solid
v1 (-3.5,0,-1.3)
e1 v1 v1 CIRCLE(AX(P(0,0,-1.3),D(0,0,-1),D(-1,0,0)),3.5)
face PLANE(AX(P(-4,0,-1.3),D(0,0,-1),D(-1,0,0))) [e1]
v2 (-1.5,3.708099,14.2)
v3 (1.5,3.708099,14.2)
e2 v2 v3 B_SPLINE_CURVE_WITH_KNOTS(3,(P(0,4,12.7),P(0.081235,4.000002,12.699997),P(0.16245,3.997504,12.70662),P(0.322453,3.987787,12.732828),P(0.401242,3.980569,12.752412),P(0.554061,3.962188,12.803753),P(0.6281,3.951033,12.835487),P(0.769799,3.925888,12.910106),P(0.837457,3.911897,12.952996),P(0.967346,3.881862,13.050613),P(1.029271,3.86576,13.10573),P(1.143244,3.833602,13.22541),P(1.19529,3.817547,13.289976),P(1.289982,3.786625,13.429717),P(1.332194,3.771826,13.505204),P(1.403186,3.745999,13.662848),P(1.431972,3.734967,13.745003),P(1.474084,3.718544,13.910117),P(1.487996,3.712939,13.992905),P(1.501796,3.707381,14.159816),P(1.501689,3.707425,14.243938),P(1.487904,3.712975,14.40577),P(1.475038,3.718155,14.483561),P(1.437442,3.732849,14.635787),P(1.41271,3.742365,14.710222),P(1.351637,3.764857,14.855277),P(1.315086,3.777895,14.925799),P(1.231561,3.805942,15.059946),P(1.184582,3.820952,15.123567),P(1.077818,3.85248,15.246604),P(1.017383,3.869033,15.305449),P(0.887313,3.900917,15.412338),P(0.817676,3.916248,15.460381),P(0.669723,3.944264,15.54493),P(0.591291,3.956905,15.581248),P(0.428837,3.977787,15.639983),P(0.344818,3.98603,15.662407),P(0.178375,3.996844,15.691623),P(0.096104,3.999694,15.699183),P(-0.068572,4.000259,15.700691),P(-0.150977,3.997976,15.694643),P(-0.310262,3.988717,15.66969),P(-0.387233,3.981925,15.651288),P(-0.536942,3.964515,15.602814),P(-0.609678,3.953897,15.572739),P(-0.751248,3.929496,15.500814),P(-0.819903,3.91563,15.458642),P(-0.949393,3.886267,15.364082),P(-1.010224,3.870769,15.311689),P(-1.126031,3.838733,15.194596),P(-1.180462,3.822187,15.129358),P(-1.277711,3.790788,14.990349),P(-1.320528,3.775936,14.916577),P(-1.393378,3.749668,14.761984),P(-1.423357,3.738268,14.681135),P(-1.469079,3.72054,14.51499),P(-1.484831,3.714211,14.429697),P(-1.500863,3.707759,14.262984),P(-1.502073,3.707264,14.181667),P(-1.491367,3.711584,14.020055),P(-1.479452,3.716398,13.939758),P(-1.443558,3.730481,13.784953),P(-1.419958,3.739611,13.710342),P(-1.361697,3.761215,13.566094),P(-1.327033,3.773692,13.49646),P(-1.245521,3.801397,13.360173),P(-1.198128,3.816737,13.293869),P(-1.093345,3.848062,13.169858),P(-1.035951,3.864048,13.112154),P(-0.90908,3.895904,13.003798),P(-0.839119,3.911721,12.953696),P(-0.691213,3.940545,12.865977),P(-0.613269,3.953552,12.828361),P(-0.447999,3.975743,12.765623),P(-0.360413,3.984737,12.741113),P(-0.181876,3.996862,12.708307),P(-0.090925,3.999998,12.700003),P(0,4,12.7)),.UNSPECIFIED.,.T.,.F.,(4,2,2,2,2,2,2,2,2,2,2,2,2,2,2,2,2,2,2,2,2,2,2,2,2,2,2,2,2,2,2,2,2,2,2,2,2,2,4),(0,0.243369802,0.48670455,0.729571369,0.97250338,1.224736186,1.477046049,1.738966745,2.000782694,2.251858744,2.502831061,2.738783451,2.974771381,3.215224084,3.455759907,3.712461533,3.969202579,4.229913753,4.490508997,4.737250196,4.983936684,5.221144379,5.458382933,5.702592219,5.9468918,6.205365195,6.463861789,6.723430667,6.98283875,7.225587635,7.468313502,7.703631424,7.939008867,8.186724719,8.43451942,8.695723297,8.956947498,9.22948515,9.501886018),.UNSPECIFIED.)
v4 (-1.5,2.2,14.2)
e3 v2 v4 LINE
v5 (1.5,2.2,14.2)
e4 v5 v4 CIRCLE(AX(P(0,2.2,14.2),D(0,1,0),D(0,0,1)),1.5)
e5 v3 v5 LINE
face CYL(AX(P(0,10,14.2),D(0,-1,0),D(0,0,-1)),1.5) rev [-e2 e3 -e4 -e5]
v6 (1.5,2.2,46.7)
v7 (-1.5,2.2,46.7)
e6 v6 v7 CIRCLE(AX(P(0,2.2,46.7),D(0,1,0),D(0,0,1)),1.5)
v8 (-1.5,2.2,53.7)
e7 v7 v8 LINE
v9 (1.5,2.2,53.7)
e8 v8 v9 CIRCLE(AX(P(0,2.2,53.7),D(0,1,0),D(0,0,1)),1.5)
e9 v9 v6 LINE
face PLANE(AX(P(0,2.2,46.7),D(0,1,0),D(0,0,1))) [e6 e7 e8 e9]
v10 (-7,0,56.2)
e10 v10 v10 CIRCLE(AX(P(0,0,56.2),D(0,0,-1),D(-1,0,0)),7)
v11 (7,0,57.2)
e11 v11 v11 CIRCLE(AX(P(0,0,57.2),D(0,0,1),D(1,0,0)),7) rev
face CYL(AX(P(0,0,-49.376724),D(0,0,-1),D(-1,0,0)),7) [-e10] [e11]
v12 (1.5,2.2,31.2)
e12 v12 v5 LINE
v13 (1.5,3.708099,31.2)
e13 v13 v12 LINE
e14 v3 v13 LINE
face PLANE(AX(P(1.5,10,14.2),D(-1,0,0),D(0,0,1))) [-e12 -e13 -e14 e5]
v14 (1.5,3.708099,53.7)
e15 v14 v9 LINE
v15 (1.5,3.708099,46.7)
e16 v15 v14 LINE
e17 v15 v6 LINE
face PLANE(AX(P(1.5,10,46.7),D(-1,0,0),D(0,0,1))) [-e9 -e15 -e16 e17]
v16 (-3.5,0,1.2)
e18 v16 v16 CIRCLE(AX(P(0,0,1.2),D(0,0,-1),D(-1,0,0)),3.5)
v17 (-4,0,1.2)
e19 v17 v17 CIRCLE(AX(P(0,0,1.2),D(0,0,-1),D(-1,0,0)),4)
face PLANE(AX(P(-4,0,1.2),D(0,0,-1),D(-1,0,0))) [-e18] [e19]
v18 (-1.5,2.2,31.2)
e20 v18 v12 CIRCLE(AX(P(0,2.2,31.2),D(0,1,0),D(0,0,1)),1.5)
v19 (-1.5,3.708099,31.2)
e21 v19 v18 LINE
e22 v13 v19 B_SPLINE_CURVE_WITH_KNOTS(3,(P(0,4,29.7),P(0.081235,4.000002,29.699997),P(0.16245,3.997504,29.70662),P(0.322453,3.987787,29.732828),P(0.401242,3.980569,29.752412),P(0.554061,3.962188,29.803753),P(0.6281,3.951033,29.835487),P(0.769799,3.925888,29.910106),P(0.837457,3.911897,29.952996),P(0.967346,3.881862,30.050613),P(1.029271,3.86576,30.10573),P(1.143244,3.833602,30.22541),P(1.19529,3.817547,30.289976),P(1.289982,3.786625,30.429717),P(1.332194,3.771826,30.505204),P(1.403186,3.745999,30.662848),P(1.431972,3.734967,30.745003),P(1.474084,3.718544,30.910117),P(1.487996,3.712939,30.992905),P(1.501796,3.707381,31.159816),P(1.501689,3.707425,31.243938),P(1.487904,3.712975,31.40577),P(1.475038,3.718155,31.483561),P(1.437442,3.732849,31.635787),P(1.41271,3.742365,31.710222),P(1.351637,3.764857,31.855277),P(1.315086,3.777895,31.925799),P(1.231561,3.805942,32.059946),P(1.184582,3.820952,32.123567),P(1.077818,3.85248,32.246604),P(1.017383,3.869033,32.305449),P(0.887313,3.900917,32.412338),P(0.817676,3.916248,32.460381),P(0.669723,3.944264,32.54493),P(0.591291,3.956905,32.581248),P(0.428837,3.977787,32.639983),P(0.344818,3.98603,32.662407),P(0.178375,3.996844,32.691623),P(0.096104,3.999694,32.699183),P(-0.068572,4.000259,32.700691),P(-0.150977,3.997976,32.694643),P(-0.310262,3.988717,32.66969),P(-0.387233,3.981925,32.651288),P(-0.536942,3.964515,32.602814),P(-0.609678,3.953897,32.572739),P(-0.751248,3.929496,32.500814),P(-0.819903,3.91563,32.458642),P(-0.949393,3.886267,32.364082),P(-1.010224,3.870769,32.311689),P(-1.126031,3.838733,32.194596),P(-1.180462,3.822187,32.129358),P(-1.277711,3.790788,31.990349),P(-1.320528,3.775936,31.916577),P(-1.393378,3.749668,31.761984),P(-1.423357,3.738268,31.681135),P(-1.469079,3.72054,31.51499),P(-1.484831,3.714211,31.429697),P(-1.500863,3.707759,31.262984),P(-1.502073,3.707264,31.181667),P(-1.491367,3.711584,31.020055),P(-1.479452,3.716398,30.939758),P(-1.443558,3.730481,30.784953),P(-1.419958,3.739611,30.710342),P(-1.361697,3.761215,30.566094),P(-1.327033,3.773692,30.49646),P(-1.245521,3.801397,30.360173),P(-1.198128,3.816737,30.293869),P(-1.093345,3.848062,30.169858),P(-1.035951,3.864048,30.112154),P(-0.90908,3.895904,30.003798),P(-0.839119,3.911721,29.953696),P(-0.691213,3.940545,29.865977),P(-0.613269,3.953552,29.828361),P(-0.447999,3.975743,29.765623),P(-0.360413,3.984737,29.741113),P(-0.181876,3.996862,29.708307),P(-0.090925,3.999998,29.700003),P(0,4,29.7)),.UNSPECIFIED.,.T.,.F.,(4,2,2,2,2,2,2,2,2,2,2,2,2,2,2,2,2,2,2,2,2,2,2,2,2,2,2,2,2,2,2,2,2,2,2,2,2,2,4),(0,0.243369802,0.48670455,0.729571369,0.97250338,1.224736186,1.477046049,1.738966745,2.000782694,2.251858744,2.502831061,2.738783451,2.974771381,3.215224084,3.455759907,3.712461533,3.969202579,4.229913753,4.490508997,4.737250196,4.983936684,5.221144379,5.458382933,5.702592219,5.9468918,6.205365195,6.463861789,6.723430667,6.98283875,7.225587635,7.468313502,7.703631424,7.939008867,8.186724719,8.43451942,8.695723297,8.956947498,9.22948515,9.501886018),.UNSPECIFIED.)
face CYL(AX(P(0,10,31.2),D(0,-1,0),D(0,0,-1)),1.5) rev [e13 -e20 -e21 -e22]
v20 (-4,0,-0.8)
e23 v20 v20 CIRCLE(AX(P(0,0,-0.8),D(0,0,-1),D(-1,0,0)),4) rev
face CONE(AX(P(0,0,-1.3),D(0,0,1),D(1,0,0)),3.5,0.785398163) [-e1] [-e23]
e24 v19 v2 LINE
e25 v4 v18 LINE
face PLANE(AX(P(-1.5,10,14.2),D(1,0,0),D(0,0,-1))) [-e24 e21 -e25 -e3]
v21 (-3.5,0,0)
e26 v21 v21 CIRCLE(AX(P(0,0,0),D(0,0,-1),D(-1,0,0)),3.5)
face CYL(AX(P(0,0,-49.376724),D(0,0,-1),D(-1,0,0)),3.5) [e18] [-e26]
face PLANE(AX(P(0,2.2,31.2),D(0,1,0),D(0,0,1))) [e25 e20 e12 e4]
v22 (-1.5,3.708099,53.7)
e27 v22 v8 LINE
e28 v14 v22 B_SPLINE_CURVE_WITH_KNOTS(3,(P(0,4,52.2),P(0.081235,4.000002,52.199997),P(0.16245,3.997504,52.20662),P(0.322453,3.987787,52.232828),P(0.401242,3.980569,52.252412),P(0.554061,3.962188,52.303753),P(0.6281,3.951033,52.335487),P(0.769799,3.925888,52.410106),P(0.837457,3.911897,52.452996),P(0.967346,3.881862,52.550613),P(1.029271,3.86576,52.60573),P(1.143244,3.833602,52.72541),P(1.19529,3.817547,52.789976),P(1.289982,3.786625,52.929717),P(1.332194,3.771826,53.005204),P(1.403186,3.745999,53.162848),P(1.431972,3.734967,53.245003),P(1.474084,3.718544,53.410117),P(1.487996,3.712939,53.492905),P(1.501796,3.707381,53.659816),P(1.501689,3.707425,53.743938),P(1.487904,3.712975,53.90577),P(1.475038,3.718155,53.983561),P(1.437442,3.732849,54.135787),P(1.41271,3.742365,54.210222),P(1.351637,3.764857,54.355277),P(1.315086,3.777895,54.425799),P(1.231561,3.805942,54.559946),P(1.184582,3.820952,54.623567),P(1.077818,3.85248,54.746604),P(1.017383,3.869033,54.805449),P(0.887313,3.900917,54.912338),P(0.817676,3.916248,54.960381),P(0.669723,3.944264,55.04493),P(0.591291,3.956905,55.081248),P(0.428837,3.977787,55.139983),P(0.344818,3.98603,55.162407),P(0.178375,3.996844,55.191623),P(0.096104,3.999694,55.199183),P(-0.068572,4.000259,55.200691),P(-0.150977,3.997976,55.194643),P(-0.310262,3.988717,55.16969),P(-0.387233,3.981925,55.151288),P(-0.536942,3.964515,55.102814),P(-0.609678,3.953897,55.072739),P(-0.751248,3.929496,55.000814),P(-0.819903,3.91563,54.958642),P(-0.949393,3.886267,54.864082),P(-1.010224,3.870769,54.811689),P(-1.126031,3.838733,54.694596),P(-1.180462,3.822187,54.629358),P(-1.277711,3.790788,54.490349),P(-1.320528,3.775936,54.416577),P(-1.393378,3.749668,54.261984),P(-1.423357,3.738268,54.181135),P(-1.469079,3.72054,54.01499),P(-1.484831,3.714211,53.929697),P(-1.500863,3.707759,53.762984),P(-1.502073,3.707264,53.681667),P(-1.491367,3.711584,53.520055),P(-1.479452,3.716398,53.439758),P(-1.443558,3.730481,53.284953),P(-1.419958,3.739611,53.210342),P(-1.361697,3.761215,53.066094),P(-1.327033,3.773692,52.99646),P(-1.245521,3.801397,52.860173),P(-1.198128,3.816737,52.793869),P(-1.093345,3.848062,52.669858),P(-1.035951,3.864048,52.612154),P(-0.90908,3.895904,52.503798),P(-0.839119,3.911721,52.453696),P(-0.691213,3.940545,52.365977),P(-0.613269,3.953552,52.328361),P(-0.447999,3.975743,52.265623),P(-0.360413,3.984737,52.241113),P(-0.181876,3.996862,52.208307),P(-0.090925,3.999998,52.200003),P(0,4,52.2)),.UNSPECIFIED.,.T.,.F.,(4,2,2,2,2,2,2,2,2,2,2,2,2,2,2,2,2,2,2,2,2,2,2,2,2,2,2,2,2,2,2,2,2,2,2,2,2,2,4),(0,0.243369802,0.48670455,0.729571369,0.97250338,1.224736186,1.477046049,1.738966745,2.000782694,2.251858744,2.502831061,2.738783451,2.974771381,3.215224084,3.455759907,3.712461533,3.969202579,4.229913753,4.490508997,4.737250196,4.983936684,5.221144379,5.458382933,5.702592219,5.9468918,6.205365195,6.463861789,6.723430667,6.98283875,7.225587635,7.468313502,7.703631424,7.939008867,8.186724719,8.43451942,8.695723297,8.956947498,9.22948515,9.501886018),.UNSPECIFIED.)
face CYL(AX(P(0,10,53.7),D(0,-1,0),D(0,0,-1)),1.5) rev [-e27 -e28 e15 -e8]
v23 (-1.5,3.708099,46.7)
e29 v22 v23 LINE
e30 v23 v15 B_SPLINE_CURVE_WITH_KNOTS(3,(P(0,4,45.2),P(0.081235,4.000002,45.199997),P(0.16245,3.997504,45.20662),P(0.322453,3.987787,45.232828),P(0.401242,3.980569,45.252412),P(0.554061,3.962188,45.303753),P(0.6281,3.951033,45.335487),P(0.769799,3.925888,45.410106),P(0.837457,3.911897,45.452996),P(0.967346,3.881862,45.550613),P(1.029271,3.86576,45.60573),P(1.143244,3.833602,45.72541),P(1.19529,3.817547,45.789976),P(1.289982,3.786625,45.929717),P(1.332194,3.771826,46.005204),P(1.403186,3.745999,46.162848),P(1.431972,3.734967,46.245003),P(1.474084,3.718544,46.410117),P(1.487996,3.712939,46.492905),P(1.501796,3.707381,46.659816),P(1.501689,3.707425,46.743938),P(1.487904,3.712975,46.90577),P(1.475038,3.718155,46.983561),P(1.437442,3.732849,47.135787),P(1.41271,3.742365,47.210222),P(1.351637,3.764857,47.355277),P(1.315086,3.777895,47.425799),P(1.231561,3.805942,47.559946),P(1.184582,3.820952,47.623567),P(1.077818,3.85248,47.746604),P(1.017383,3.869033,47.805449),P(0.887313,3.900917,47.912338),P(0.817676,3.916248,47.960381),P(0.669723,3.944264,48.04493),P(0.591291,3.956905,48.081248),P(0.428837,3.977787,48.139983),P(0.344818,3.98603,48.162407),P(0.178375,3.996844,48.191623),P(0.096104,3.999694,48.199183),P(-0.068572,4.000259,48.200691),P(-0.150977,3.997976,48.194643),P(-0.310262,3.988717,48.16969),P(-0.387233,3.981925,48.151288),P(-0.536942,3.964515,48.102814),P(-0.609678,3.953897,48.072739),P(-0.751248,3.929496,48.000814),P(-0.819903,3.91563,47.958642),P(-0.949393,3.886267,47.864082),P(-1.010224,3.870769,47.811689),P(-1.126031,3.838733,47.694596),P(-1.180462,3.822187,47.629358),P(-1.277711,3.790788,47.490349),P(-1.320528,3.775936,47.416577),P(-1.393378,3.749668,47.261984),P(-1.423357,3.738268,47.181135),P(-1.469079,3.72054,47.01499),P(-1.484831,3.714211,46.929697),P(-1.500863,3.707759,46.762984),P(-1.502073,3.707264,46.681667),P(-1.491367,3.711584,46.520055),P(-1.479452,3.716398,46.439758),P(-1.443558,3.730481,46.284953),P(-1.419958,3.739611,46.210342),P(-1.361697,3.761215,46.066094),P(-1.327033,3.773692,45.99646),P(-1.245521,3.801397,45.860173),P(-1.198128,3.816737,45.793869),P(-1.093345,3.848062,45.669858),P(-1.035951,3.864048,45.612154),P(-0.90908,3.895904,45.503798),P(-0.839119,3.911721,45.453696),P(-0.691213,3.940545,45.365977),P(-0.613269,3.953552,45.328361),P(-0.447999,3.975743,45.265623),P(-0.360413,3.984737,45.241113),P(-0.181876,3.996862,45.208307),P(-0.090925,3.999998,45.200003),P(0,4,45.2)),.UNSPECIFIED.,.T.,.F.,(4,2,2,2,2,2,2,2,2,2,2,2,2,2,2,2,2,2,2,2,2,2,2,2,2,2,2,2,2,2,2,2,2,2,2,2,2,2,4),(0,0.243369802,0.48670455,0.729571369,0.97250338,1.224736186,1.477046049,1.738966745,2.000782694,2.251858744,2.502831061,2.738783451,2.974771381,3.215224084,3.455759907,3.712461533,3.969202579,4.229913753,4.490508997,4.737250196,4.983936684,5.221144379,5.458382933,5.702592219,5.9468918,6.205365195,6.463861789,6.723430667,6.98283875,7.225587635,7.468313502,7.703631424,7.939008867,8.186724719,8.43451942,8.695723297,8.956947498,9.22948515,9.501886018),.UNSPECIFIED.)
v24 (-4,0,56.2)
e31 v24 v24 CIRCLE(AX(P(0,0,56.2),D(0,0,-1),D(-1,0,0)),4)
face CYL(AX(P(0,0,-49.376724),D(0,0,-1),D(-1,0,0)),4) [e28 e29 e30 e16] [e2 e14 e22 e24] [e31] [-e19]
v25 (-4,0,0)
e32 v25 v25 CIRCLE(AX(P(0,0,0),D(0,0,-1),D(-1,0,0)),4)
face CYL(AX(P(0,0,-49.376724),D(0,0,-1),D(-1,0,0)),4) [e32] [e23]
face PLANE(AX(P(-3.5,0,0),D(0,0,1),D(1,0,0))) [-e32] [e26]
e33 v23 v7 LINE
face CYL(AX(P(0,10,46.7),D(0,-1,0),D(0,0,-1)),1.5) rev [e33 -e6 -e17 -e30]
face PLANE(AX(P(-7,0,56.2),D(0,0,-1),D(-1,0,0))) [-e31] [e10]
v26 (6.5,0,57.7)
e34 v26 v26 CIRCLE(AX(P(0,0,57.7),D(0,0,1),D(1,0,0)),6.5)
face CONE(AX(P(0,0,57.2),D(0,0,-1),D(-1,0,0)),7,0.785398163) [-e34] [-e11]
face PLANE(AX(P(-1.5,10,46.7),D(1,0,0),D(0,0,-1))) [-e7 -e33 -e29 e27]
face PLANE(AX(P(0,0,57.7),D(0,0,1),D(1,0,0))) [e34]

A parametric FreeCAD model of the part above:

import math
import FreeCAD as App
import Part
import Sketcher
Q = App.Units.Quantity


def edges_at(feature, points):
    """Names of the edges that pass closest to the given points."""
    edges = feature.Shape.Edges
    near = lambda p: min(range(len(edges)), key=lambda i: edges[i].distToShape(Part.Vertex(*p))[0])
    return sorted({f"Edge{near(p) + 1}" for p in points})


def add_polygon(sketch, points):
    """Adds a closed chain of lines whose ends are joined by coincident constraints."""
    first, n = sketch.GeometryCount, len(points)
    for a, b in zip(points, points[1:] + points[:1]):
        sketch.addGeometry(Part.LineSegment(App.Vector(*a, 0), App.Vector(*b, 0)), False)
    for i in range(n):
        sketch.addConstraint(Sketcher.Constraint("Coincident", first + i, 2, first + (i + 1) % n, 1))

doc = App.newDocument("Part")
params = doc.addObject("Spreadsheet::Sheet", "Params")
for row, (alias, value) in enumerate([
    ("sketch1_width", "7 mm"),
    ("sketch1_width2", "4 mm"),
    ("sketch1_height", "59 mm"),
    ("sketch1_height2", "55 mm"),
    ("sketch1_width3", "0.5 mm"),
    ("revolution_angle", "360 deg"),
    ("chamfer_size", "0.5 mm"),
    ("sketch2_radius", "1.5 mm"),
    ("sketch2_height", "17 mm"),
    ("sketch2_height2", "7 mm"),
    ("pocket1_length", "10 mm"),
    ("sketch3_radius", "1.5 mm"),
    ("sketch3_height", "17 mm"),
    ("pad1_length", "2.2 mm"),
    ("sketch4_radius", "1.5 mm"),
    ("sketch4_height", "7 mm"),
    ("pad2_length", "2.2 mm"),
], start=1):
    params.set(f"A{row}", alias)
    params.set(f"B{row}", "=" + value)
    params.setAlias(f"B{row}", alias)

body = doc.addObject("PartDesign::Body", "Body")

# Sketch on XZ plane
sketch1 = body.newObject("Sketcher::SketchObject", "Sketch")
sketch1.AttachmentSupport = (doc.getObject("XZ_Plane"), [""])
sketch1.MapMode = "FlatFace"
add_polygon(sketch1, [(-7, 57.7), (0, 57.7), (0, -1.3), (-4, -1.3), (-4, 0), (-3.5, 0), (-3.5, 1.2), (-4, 1.2), (-4, 56.2), (-7, 56.2)])  # lines 0-9
sketch1.addConstraint(Sketcher.Constraint("Horizontal", 0))
sketch1.addConstraint(Sketcher.Constraint("Vertical", 1))
sketch1.addConstraint(Sketcher.Constraint("Horizontal", 2))
sketch1.addConstraint(Sketcher.Constraint("Vertical", 3))
sketch1.addConstraint(Sketcher.Constraint("Horizontal", 4))
sketch1.addConstraint(Sketcher.Constraint("Vertical", 5))
sketch1.addConstraint(Sketcher.Constraint("Horizontal", 6))
sketch1.addConstraint(Sketcher.Constraint("Vertical", 7))
sketch1.addConstraint(Sketcher.Constraint("Horizontal", 8))
sketch1.addConstraint(Sketcher.Constraint("Vertical", 9))
sketch1.addConstraint(Sketcher.Constraint("PointOnObject", 0, 2, -2))
sketch1.addConstraint(Sketcher.Constraint("PointOnObject", 3, 2, -1))
sketch1.addConstraint(Sketcher.Constraint("Vertical", 3, 2, 6, 2))
sketch1.addConstraint(Sketcher.Constraint("DistanceX", 0, 1, 0, 2, Q("7 mm")))
sketch1.addConstraint(Sketcher.Constraint("DistanceX", 2, 2, 2, 1, Q("4 mm")))
sketch1.addConstraint(Sketcher.Constraint("DistanceY", 1, 2, 1, 1, Q("59 mm")))
sketch1.addConstraint(Sketcher.Constraint("DistanceY", 7, 1, 7, 2, Q("55 mm")))
sketch1.addConstraint(Sketcher.Constraint("DistanceX", 4, 1, 4, 2, Q("0.5 mm")))
sketch1.addConstraint(Sketcher.Constraint("DistanceY", 3, 1, 3, 2, Q("1.3 mm")))
sketch1.addConstraint(Sketcher.Constraint("DistanceY", 5, 1, 5, 2, Q("1.2 mm")))
sketch1.setExpression("Constraints[23]", "Params.sketch1_width")
sketch1.setExpression("Constraints[24]", "Params.sketch1_width2")
sketch1.setExpression("Constraints[25]", "Params.sketch1_height")
sketch1.setExpression("Constraints[26]", "Params.sketch1_height2")
sketch1.setExpression("Constraints[27]", "Params.sketch1_width3")
revolution = body.newObject("PartDesign::Revolution", "Revolution")
revolution.Profile = sketch1
revolution.ReferenceAxis = (sketch1, ["V_Axis"])
revolution.setExpression("Angle", "Params.revolution_angle")
doc.recompute()

chamfer = body.newObject("PartDesign::Chamfer", "Chamfer")
chamfer.Base = (revolution, edges_at(revolution, [(4, 0, -1.3), (7, 0, 57.7)]))
chamfer.setExpression("Size", "Params.chamfer_size")

# Sketch on XZ plane
sketch2 = body.newObject("Sketcher::SketchObject", "Sketch001")
sketch2.AttachmentSupport = (doc.getObject("XZ_Plane"), [""])
sketch2.MapMode = "FlatFace"
sketch2.addGeometry(Part.LineSegment(App.Vector(-1.5, 14.2, 0), App.Vector(-1.5, 31.2, 0)), False)
sketch2.addGeometry(Part.ArcOfCircle(Part.Circle(App.Vector(0, 31.2, 0), App.Vector(0, 0, 1), 1.5), math.radians(0), math.radians(180)), False)
sketch2.addGeometry(Part.LineSegment(App.Vector(1.5, 31.2, 0), App.Vector(1.5, 14.2, 0)), False)
sketch2.addGeometry(Part.ArcOfCircle(Part.Circle(App.Vector(0, 14.2, 0), App.Vector(0, 0, 1), 1.5), math.radians(180), math.radians(360)), False)
sketch2.addGeometry(Part.LineSegment(App.Vector(-1.5, 46.7, 0), App.Vector(-1.5, 53.7, 0)), False)
sketch2.addGeometry(Part.ArcOfCircle(Part.Circle(App.Vector(0, 53.7, 0), App.Vector(0, 0, 1), 1.5), math.radians(0), math.radians(180)), False)
sketch2.addGeometry(Part.LineSegment(App.Vector(1.5, 53.7, 0), App.Vector(1.5, 46.7, 0)), False)
sketch2.addGeometry(Part.ArcOfCircle(Part.Circle(App.Vector(0, 46.7, 0), App.Vector(0, 0, 1), 1.5), math.radians(180), math.radians(360)), False)
sketch2.addConstraint(Sketcher.Constraint("Tangent", 0, 2, 1, 2))
sketch2.addConstraint(Sketcher.Constraint("Tangent", 1, 1, 2, 1))
sketch2.addConstraint(Sketcher.Constraint("Tangent", 2, 2, 3, 2))
sketch2.addConstraint(Sketcher.Constraint("Tangent", 3, 1, 0, 1))
sketch2.addConstraint(Sketcher.Constraint("Tangent", 4, 2, 5, 2))
sketch2.addConstraint(Sketcher.Constraint("Tangent", 5, 1, 6, 1))
sketch2.addConstraint(Sketcher.Constraint("Tangent", 6, 2, 7, 2))
sketch2.addConstraint(Sketcher.Constraint("Tangent", 7, 1, 4, 1))
sketch2.addConstraint(Sketcher.Constraint("Vertical", 0))
sketch2.addConstraint(Sketcher.Constraint("Vertical", 2))
sketch2.addConstraint(Sketcher.Constraint("Vertical", 4))
sketch2.addConstraint(Sketcher.Constraint("Vertical", 6))
sketch2.addConstraint(Sketcher.Constraint("Equal", 3, 5))
sketch2.addConstraint(Sketcher.Constraint("PointOnObject", 1, 3, -2))
sketch2.addConstraint(Sketcher.Constraint("PointOnObject", 5, 3, -2))
sketch2.addConstraint(Sketcher.Constraint("Radius", 1, Q("1.5 mm")))
sketch2.addConstraint(Sketcher.Constraint("DistanceY", 0, 1, 0, 2, Q("17 mm")))
sketch2.addConstraint(Sketcher.Constraint("DistanceY", 4, 1, 4, 2, Q("7 mm")))
sketch2.addConstraint(Sketcher.Constraint("DistanceY", -1, 1, 1, 3, Q("31.2 mm")))
sketch2.addConstraint(Sketcher.Constraint("DistanceY", -1, 1, 5, 3, Q("53.7 mm")))
sketch2.setExpression("Constraints[15]", "Params.sketch2_radius")
sketch2.setExpression("Constraints[16]", "Params.sketch2_height")
sketch2.setExpression("Constraints[17]", "Params.sketch2_height2")
pocket1 = body.newObject("PartDesign::Pocket", "Pocket")
pocket1.Profile = sketch2
pocket1.setExpression("Length", "Params.pocket1_length")

# Sketch on XZ plane
sketch3 = body.newObject("Sketcher::SketchObject", "Sketch002")
sketch3.AttachmentSupport = (doc.getObject("XZ_Plane"), [""])
sketch3.MapMode = "FlatFace"
sketch3.addGeometry(Part.LineSegment(App.Vector(1.5, 31.2, 0), App.Vector(1.5, 14.2, 0)), False)
sketch3.addGeometry(Part.ArcOfCircle(Part.Circle(App.Vector(0, 14.2, 0), App.Vector(0, 0, 1), 1.5), math.radians(180), math.radians(360)), False)
sketch3.addGeometry(Part.LineSegment(App.Vector(-1.5, 14.2, 0), App.Vector(-1.5, 31.2, 0)), False)
sketch3.addGeometry(Part.ArcOfCircle(Part.Circle(App.Vector(0, 31.2, 0), App.Vector(0, 0, 1), 1.5), math.radians(0), math.radians(180)), False)
sketch3.addConstraint(Sketcher.Constraint("Tangent", 0, 2, 1, 2))
sketch3.addConstraint(Sketcher.Constraint("Tangent", 1, 1, 2, 1))
sketch3.addConstraint(Sketcher.Constraint("Tangent", 2, 2, 3, 2))
sketch3.addConstraint(Sketcher.Constraint("Tangent", 3, 1, 0, 1))
sketch3.addConstraint(Sketcher.Constraint("Vertical", 0))
sketch3.addConstraint(Sketcher.Constraint("Vertical", 2))
sketch3.addConstraint(Sketcher.Constraint("PointOnObject", 1, 3, -2))
sketch3.addConstraint(Sketcher.Constraint("Radius", 1, Q("1.5 mm")))
sketch3.addConstraint(Sketcher.Constraint("DistanceY", 0, 2, 0, 1, Q("17 mm")))
sketch3.addConstraint(Sketcher.Constraint("DistanceY", -1, 1, 1, 3, Q("14.2 mm")))
sketch3.setExpression("Constraints[7]", "Params.sketch3_radius")
sketch3.setExpression("Constraints[8]", "Params.sketch3_height")
pad1 = body.newObject("PartDesign::Pad", "Pad")
pad1.Profile = sketch3
pad1.setExpression("Length", "Params.pad1_length")
pad1.Reversed = True

# Sketch on XZ plane
sketch4 = body.newObject("Sketcher::SketchObject", "Sketch003")
sketch4.AttachmentSupport = (doc.getObject("XZ_Plane"), [""])
sketch4.MapMode = "FlatFace"
sketch4.addGeometry(Part.LineSegment(App.Vector(-1.5, 46.7, 0), App.Vector(-1.5, 53.7, 0)), False)
sketch4.addGeometry(Part.ArcOfCircle(Part.Circle(App.Vector(0, 53.7, 0), App.Vector(0, 0, 1), 1.5), math.radians(0), math.radians(180)), False)
sketch4.addGeometry(Part.LineSegment(App.Vector(1.5, 53.7, 0), App.Vector(1.5, 46.7, 0)), False)
sketch4.addGeometry(Part.ArcOfCircle(Part.Circle(App.Vector(0, 46.7, 0), App.Vector(0, 0, 1), 1.5), math.radians(180), math.radians(360)), False)
sketch4.addConstraint(Sketcher.Constraint("Tangent", 0, 2, 1, 2))
sketch4.addConstraint(Sketcher.Constraint("Tangent", 1, 1, 2, 1))
sketch4.addConstraint(Sketcher.Constraint("Tangent", 2, 2, 3, 2))
sketch4.addConstraint(Sketcher.Constraint("Tangent", 3, 1, 0, 1))
sketch4.addConstraint(Sketcher.Constraint("Vertical", 0))
sketch4.addConstraint(Sketcher.Constraint("Vertical", 2))
sketch4.addConstraint(Sketcher.Constraint("PointOnObject", 1, 3, -2))
sketch4.addConstraint(Sketcher.Constraint("Radius", 1, Q("1.5 mm")))
sketch4.addConstraint(Sketcher.Constraint("DistanceY", 0, 1, 0, 2, Q("7 mm")))
sketch4.addConstraint(Sketcher.Constraint("DistanceY", -1, 1, 1, 3, Q("53.7 mm")))
sketch4.setExpression("Constraints[7]", "Params.sketch4_radius")
sketch4.setExpression("Constraints[8]", "Params.sketch4_height")
pad2 = body.newObject("PartDesign::Pad", "Pad001")
pad2.Profile = sketch4
pad2.setExpression("Length", "Params.pad2_length")
pad2.Reversed = True

doc.recompute()
